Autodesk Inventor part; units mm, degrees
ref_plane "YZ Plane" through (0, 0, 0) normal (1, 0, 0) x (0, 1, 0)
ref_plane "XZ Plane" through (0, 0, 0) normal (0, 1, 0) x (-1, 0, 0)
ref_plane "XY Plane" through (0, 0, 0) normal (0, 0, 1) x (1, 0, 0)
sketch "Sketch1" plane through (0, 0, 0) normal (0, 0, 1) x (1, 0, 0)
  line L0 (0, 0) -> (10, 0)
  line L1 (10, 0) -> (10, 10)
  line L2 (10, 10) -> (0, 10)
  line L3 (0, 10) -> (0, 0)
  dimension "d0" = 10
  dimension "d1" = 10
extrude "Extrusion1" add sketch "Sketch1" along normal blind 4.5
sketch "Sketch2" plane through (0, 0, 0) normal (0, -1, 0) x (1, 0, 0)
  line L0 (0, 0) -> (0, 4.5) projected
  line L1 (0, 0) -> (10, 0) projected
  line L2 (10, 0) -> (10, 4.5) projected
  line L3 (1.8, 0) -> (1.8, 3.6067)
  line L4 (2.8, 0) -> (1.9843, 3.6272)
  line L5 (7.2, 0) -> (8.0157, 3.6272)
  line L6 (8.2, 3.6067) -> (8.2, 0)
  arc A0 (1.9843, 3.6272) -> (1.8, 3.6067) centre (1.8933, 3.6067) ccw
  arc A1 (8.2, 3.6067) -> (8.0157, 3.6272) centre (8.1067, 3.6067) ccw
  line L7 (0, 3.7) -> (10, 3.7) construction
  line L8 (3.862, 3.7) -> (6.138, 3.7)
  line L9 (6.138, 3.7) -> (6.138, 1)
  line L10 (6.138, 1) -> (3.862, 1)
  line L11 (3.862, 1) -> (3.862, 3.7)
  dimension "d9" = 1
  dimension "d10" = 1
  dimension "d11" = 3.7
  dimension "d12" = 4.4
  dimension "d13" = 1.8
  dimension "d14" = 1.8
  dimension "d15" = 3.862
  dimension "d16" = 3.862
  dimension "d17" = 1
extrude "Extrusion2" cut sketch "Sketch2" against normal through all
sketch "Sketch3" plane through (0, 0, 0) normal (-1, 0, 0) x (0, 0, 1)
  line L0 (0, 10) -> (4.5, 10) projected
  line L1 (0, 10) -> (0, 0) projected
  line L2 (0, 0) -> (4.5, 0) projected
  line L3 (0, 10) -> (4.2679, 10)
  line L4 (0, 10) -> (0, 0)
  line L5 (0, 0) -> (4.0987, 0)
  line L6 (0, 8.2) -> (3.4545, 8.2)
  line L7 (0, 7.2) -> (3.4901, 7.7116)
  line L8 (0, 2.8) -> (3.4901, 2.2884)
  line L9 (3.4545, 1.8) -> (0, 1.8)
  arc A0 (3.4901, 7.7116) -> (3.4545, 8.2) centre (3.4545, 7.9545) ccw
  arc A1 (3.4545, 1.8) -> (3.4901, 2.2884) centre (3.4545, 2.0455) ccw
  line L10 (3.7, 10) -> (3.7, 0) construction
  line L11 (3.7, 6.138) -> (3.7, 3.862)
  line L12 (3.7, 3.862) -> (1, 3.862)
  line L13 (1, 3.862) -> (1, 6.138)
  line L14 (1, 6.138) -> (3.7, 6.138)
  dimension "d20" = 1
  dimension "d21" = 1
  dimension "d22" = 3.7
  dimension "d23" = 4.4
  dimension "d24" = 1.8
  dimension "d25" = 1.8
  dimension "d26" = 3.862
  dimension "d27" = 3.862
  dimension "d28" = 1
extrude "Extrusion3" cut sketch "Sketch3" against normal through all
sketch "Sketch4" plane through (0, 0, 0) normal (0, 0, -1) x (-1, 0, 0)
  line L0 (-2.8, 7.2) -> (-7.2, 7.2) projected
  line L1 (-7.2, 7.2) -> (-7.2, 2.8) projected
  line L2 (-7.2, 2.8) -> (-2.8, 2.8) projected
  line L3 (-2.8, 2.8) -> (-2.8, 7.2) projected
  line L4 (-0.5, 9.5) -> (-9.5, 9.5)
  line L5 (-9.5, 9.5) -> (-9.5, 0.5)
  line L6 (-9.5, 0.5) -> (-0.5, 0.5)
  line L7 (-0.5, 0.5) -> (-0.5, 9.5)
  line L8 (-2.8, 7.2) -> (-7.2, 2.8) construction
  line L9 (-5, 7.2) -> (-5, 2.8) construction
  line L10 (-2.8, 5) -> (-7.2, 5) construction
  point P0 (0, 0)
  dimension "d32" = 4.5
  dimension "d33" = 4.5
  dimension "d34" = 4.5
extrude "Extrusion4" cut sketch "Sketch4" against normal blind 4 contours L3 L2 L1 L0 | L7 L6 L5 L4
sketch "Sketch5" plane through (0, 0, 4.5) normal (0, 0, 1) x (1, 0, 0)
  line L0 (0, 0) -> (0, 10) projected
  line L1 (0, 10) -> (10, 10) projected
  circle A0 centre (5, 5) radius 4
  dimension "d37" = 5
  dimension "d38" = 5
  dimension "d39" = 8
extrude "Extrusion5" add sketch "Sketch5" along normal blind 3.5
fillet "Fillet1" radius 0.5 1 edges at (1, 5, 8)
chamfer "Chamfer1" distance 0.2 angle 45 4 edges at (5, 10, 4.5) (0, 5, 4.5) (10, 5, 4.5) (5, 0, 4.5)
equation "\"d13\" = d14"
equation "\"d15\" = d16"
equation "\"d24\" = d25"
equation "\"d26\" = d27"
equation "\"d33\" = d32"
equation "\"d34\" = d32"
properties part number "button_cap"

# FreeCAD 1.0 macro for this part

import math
import FreeCAD as App
import Part
import Sketcher
Q = App.Units.Quantity


def edges_at(feature, points):
    """Names of the edges that pass closest to the given points."""
    edges = feature.Shape.Edges
    near = lambda p: min(range(len(edges)), key=lambda i: edges[i].distToShape(Part.Vertex(*p))[0])
    return sorted({f"Edge{near(p) + 1}" for p in points})

doc = App.newDocument("Part")
params = doc.addObject("Spreadsheet::Sheet", "Params")
for row, (alias, value) in enumerate([
    ("sketch1_width", "10 mm"),
    ("pad1_length", "4.5 mm"),
    ("sketch2_width", "1 mm"),
    ("sketch3_width", "1 mm"),
    ("sketch4_width", "9 mm"),
    ("pocket3_length", "4 mm"),
    ("sketch5_diameter", "8 mm"),
    ("pad2_length", "3.5 mm"),
    ("fillet_radius", "0.5 mm"),
    ("chamfer_size", "0.2 mm"),
], start=1):
    params.set(f"A{row}", alias)
    params.set(f"B{row}", "=" + value)
    params.setAlias(f"B{row}", alias)

body = doc.addObject("PartDesign::Body", "Body")

# Sketch on XY plane
sketch1 = body.newObject("Sketcher::SketchObject", "Sketch")
sketch1.AttachmentSupport = (doc.getObject("XY_Plane"), [""])
sketch1.MapMode = "FlatFace"
sketch1.addGeometry(Part.LineSegment(App.Vector(0, 10, 0), App.Vector(0, 0, 0)), False)
sketch1.addGeometry(Part.LineSegment(App.Vector(0, 0, 0), App.Vector(10, 0, 0)), False)
sketch1.addGeometry(Part.LineSegment(App.Vector(10, 0, 0), App.Vector(10, 10, 0)), False)
sketch1.addGeometry(Part.LineSegment(App.Vector(10, 10, 0), App.Vector(0, 10, 0)), False)
sketch1.addConstraint(Sketcher.Constraint("Coincident", 0, 2, 1, 1))
sketch1.addConstraint(Sketcher.Constraint("Coincident", 1, 2, 2, 1))
sketch1.addConstraint(Sketcher.Constraint("Coincident", 2, 2, 3, 1))
sketch1.addConstraint(Sketcher.Constraint("Coincident", 3, 2, 0, 1))
sketch1.addConstraint(Sketcher.Constraint("Vertical", 0))
sketch1.addConstraint(Sketcher.Constraint("Horizontal", 1))
sketch1.addConstraint(Sketcher.Constraint("Vertical", 2))
sketch1.addConstraint(Sketcher.Constraint("Horizontal", 3))
sketch1.addConstraint(Sketcher.Constraint("Coincident", 0, 2, -1, 1))
sketch1.addConstraint(Sketcher.Constraint("Equal", 3, 0))
sketch1.addConstraint(Sketcher.Constraint("DistanceX", 1, 1, 1, 2, Q("10 mm")))
sketch1.setExpression("Constraints[10]", "Params.sketch1_width")
pad1 = body.newObject("PartDesign::Pad", "Pad")
pad1.Profile = sketch1
pad1.setExpression("Length", "Params.pad1_length")

# Sketch on XZ plane
sketch2 = body.newObject("Sketcher::SketchObject", "Sketch001")
sketch2.AttachmentSupport = (doc.getObject("XZ_Plane"), [""])
sketch2.MapMode = "FlatFace"
sketch2.addGeometry(Part.LineSegment(App.Vector(1.8, 3.6067, 0), App.Vector(1.8, 0, 0)), False)
sketch2.addGeometry(Part.LineSegment(App.Vector(1.8, 0, 0), App.Vector(2.8, 0, 0)), False)
sketch2.addGeometry(Part.LineSegment(App.Vector(2.8, 0, 0), App.Vector(1.9843, 3.6272, 0)), False)
sketch2.addGeometry(Part.ArcOfCircle(Part.Circle(App.Vector(1.8933, 3.6067, 0), App.Vector(0, 0, 1), 0.09328), math.radians(12.695365), math.radians(180)), False)
sketch2.addGeometry(Part.LineSegment(App.Vector(8.0157, 3.6272, 0), App.Vector(7.2, 0, 0)), False)
sketch2.addGeometry(Part.LineSegment(App.Vector(7.2, 0, 0), App.Vector(8.2, 0, 0)), False)
sketch2.addGeometry(Part.LineSegment(App.Vector(8.2, 0, 0), App.Vector(8.2, 3.6067, 0)), False)
sketch2.addGeometry(Part.ArcOfCircle(Part.Circle(App.Vector(8.1067, 3.6067, 0), App.Vector(0, 0, 1), 0.0933), math.radians(0), math.radians(167.304635)), False)
sketch2.addGeometry(Part.LineSegment(App.Vector(6.138, 3.7, 0), App.Vector(3.862, 3.7, 0)), False)
sketch2.addGeometry(Part.LineSegment(App.Vector(3.862, 3.7, 0), App.Vector(3.862, 1, 0)), False)
sketch2.addGeometry(Part.LineSegment(App.Vector(3.862, 1, 0), App.Vector(6.138, 1, 0)), False)
sketch2.addGeometry(Part.LineSegment(App.Vector(6.138, 1, 0), App.Vector(6.138, 3.7, 0)), False)
sketch2.addConstraint(Sketcher.Constraint("Coincident", 0, 2, 1, 1))
sketch2.addConstraint(Sketcher.Constraint("Coincident", 1, 2, 2, 1))
sketch2.addConstraint(Sketcher.Constraint("Tangent", 2, 2, 3, 1))
sketch2.addConstraint(Sketcher.Constraint("Tangent", 3, 2, 0, 1))
sketch2.addConstraint(Sketcher.Constraint("Coincident", 4, 2, 5, 1))
sketch2.addConstraint(Sketcher.Constraint("Coincident", 5, 2, 6, 1))
sketch2.addConstraint(Sketcher.Constraint("Tangent", 6, 2, 7, 1))
sketch2.addConstraint(Sketcher.Constraint("Tangent", 7, 2, 4, 1))
sketch2.addConstraint(Sketcher.Constraint("Coincident", 8, 2, 9, 1))
sketch2.addConstraint(Sketcher.Constraint("Coincident", 9, 2, 10, 1))
sketch2.addConstraint(Sketcher.Constraint("Coincident", 10, 2, 11, 1))
sketch2.addConstraint(Sketcher.Constraint("Coincident", 11, 2, 8, 1))
sketch2.addConstraint(Sketcher.Constraint("Vertical", 0))
sketch2.addConstraint(Sketcher.Constraint("Horizontal", 1))
sketch2.addConstraint(Sketcher.Constraint("Horizontal", 5))
sketch2.addConstraint(Sketcher.Constraint("Vertical", 6))
sketch2.addConstraint(Sketcher.Constraint("Horizontal", 8))
sketch2.addConstraint(Sketcher.Constraint("Vertical", 9))
sketch2.addConstraint(Sketcher.Constraint("Horizontal", 10))
sketch2.addConstraint(Sketcher.Constraint("Vertical", 11))
sketch2.addConstraint(Sketcher.Constraint("Equal", 3, 7))
sketch2.addConstraint(Sketcher.Constraint("PointOnObject", 0, 2, -1))
sketch2.addConstraint(Sketcher.Constraint("PointOnObject", 4, 2, -1))
sketch2.addConstraint(Sketcher.Constraint("Horizontal", 3, 3, 7, 3))
sketch2.addConstraint(Sketcher.Constraint("Horizontal", 2, 2, 7, 2))
sketch2.addConstraint(Sketcher.Constraint("DistanceX", 1, 1, 1, 2, Q("1 mm")))
sketch2.addConstraint(Sketcher.Constraint("DistanceY", -1, 1, 9, 2, Q("1 mm")))
sketch2.addConstraint(Sketcher.Constraint("DistanceX", -1, 1, 0, 2, Q("1.8 mm")))
sketch2.addConstraint(Sketcher.Constraint("DistanceY", -1, 1, 8, 2, Q("3.7 mm")))
sketch2.addConstraint(Sketcher.Constraint("DistanceX", 1, 2, 4, 2, Q("4.4 mm")))
sketch2.addConstraint(Sketcher.Constraint("DistanceX", -1, 1, 8, 2, Q("3.862 mm")))
sketch2.addConstraint(Sketcher.Constraint("Radius", 3, Q("0.0933 mm")))
sketch2.addConstraint(Sketcher.Constraint("DistanceX", 8, 2, 8, 1, Q("2.276 mm")))
sketch2.addConstraint(Sketcher.Constraint("DistanceY", 0, 2, 0, 1, Q("3.6067 mm")))
sketch2.setExpression("Constraints[25]", "Params.sketch2_width")
pocket1 = body.newObject("PartDesign::Pocket", "Pocket")
pocket1.Profile = sketch2
pocket1.Type = "ThroughAll"

# Sketch on YZ plane
sketch3 = body.newObject("Sketcher::SketchObject", "Sketch002")
sketch3.AttachmentSupport = (doc.getObject("YZ_Plane"), [""])
sketch3.MapMode = "FlatFace"
sketch3.addGeometry(Part.LineSegment(App.Vector(8.2, 3.4545, 0), App.Vector(8.2, 0, 0)), False)
sketch3.addGeometry(Part.LineSegment(App.Vector(8.2, 0, 0), App.Vector(7.2, 0, 0)), False)
sketch3.addGeometry(Part.LineSegment(App.Vector(7.2, 0, 0), App.Vector(7.7116, 3.4901, 0)), False)
sketch3.addGeometry(Part.ArcOfCircle(Part.Circle(App.Vector(7.9545, 3.4545, 0), App.Vector(0, 0, 1), 0.245495), math.radians(0), math.radians(171.661958)), False)
sketch3.addGeometry(Part.LineSegment(App.Vector(2.2884, 3.4901, 0), App.Vector(2.8, 0, 0)), False)
sketch3.addGeometry(Part.LineSegment(App.Vector(2.8, 0, 0), App.Vector(1.8, 0, 0)), False)
sketch3.addGeometry(Part.LineSegment(App.Vector(1.8, 0, 0), App.Vector(1.8, 3.4545, 0)), False)
sketch3.addGeometry(Part.ArcOfCircle(Part.Circle(App.Vector(2.0455, 3.4545, 0), App.Vector(0, 0, 1), 0.2455), math.radians(8.338042), math.radians(180)), False)
sketch3.addGeometry(Part.LineSegment(App.Vector(3.862, 3.7, 0), App.Vector(6.138, 3.7, 0)), False)
sketch3.addGeometry(Part.LineSegment(App.Vector(6.138, 3.7, 0), App.Vector(6.138, 1, 0)), False)
sketch3.addGeometry(Part.LineSegment(App.Vector(6.138, 1, 0), App.Vector(3.862, 1, 0)), False)
sketch3.addGeometry(Part.LineSegment(App.Vector(3.862, 1, 0), App.Vector(3.862, 3.7, 0)), False)
sketch3.addConstraint(Sketcher.Constraint("Coincident", 0, 2, 1, 1))
sketch3.addConstraint(Sketcher.Constraint("Coincident", 1, 2, 2, 1))
sketch3.addConstraint(Sketcher.Constraint("Tangent", 2, 2, 3, 2))
sketch3.addConstraint(Sketcher.Constraint("Tangent", 3, 1, 0, 1))
sketch3.addConstraint(Sketcher.Constraint("Coincident", 4, 2, 5, 1))
sketch3.addConstraint(Sketcher.Constraint("Coincident", 5, 2, 6, 1))
sketch3.addConstraint(Sketcher.Constraint("Tangent", 6, 2, 7, 2))
sketch3.addConstraint(Sketcher.Constraint("Tangent", 7, 1, 4, 1))
sketch3.addConstraint(Sketcher.Constraint("Coincident", 8, 2, 9, 1))
sketch3.addConstraint(Sketcher.Constraint("Coincident", 9, 2, 10, 1))
sketch3.addConstraint(Sketcher.Constraint("Coincident", 10, 2, 11, 1))
sketch3.addConstraint(Sketcher.Constraint("Coincident", 11, 2, 8, 1))
sketch3.addConstraint(Sketcher.Constraint("Vertical", 0))
sketch3.addConstraint(Sketcher.Constraint("Horizontal", 1))
sketch3.addConstraint(Sketcher.Constraint("Horizontal", 5))
sketch3.addConstraint(Sketcher.Constraint("Vertical", 6))
sketch3.addConstraint(Sketcher.Constraint("Horizontal", 8))
sketch3.addConstraint(Sketcher.Constraint("Vertical", 9))
sketch3.addConstraint(Sketcher.Constraint("Horizontal", 10))
sketch3.addConstraint(Sketcher.Constraint("Vertical", 11))
sketch3.addConstraint(Sketcher.Constraint("Equal", 3, 7))
sketch3.addConstraint(Sketcher.Constraint("PointOnObject", 0, 2, -1))
sketch3.addConstraint(Sketcher.Constraint("PointOnObject", 4, 2, -1))
sketch3.addConstraint(Sketcher.Constraint("Horizontal", 3, 3, 7, 3))
sketch3.addConstraint(Sketcher.Constraint("Horizontal", 2, 2, 7, 1))
sketch3.addConstraint(Sketcher.Constraint("DistanceX", 1, 2, 1, 1, Q("1 mm")))
sketch3.addConstraint(Sketcher.Constraint("DistanceY", -1, 1, 9, 2, Q("1 mm")))
sketch3.addConstraint(Sketcher.Constraint("DistanceX", -1, 1, 5, 2, Q("1.8 mm")))
sketch3.addConstraint(Sketcher.Constraint("DistanceY", -1, 1, 8, 2, Q("3.7 mm")))
sketch3.addConstraint(Sketcher.Constraint("DistanceX", 4, 2, 1, 2, Q("4.4 mm")))
sketch3.addConstraint(Sketcher.Constraint("DistanceX", -1, 1, 10, 2, Q("3.862 mm")))
sketch3.addConstraint(Sketcher.Constraint("Angle", 2, Q("81.6606 deg")))
sketch3.addConstraint(Sketcher.Constraint("Radius", 3, Q("0.2455 mm")))
sketch3.addConstraint(Sketcher.Constraint("DistanceX", 8, 1, 8, 2, Q("2.276 mm")))
sketch3.setExpression("Constraints[25]", "Params.sketch3_width")
pocket2 = body.newObject("PartDesign::Pocket", "Pocket001")
pocket2.Profile = sketch3
pocket2.Type = "ThroughAll"
pocket2.Reversed = True

# Sketch on XY plane
sketch4 = body.newObject("Sketcher::SketchObject", "Sketch003")
sketch4.AttachmentSupport = (doc.getObject("XY_Plane"), [""])
sketch4.MapMode = "FlatFace"
sketch4.addGeometry(Part.LineSegment(App.Vector(0.5, 0.5, 0), App.Vector(0.5, 9.5, 0)), False)
sketch4.addGeometry(Part.LineSegment(App.Vector(0.5, 9.5, 0), App.Vector(9.5, 9.5, 0)), False)
sketch4.addGeometry(Part.LineSegment(App.Vector(9.5, 9.5, 0), App.Vector(9.5, 0.5, 0)), False)
sketch4.addGeometry(Part.LineSegment(App.Vector(9.5, 0.5, 0), App.Vector(0.5, 0.5, 0)), False)
sketch4.addConstraint(Sketcher.Constraint("Coincident", 0, 2, 1, 1))
sketch4.addConstraint(Sketcher.Constraint("Coincident", 1, 2, 2, 1))
sketch4.addConstraint(Sketcher.Constraint("Coincident", 2, 2, 3, 1))
sketch4.addConstraint(Sketcher.Constraint("Coincident", 3, 2, 0, 1))
sketch4.addConstraint(Sketcher.Constraint("Vertical", 0))
sketch4.addConstraint(Sketcher.Constraint("Horizontal", 1))
sketch4.addConstraint(Sketcher.Constraint("Vertical", 2))
sketch4.addConstraint(Sketcher.Constraint("Horizontal", 3))
sketch4.addConstraint(Sketcher.Constraint("Equal", 3, 0))
sketch4.addConstraint(Sketcher.Constraint("DistanceX", 1, 1, 1, 2, Q("9 mm")))
sketch4.addConstraint(Sketcher.Constraint("DistanceX", -1, 1, 0, 2, Q("0.5 mm")))
sketch4.addConstraint(Sketcher.Constraint("DistanceY", -1, 1, 0, 2, Q("9.5 mm")))
sketch4.setExpression("Constraints[9]", "Params.sketch4_width")
pocket3 = body.newObject("PartDesign::Pocket", "Pocket002")
pocket3.Profile = sketch4
pocket3.setExpression("Length", "Params.pocket3_length")
pocket3.Reversed = True

# Sketch on XY plane
sketch5 = body.newObject("Sketcher::SketchObject", "Sketch004")
sketch5.AttachmentSupport = (doc.getObject("XY_Plane"), [""])
sketch5.MapMode = "FlatFace"
sketch5.AttachmentOffset = App.Placement(App.Vector(0, 0, 4.5), App.Rotation())
sketch5.addGeometry(Part.Circle(App.Vector(5, 5, 0), App.Vector(0, 0, 1), 4), False)
sketch5.addConstraint(Sketcher.Constraint("Diameter", 0, Q("8 mm")))
sketch5.addConstraint(Sketcher.Constraint("DistanceX", -1, 1, 0, 3, Q("5 mm")))
sketch5.addConstraint(Sketcher.Constraint("DistanceY", -1, 1, 0, 3, Q("5 mm")))
sketch5.setExpression("Constraints[0]", "Params.sketch5_diameter")
pad2 = body.newObject("PartDesign::Pad", "Pad001")
pad2.Profile = sketch5
pad2.setExpression("Length", "Params.pad2_length")
doc.recompute()

fillet = body.newObject("PartDesign::Fillet", "Fillet")
fillet.Base = (pad2, edges_at(pad2, [(1, 5, 8)]))
fillet.setExpression("Radius", "Params.fillet_radius")
doc.recompute()

chamfer = body.newObject("PartDesign::Chamfer", "Chamfer")
chamfer.Base = (fillet, edges_at(fillet, [
    (5, 10, 4.5),
    (0, 5, 4.5),
    (10, 5, 4.5),
    (5, 0, 4.5),
]))
chamfer.setExpression("Size", "Params.chamfer_size")

doc.recompute()
